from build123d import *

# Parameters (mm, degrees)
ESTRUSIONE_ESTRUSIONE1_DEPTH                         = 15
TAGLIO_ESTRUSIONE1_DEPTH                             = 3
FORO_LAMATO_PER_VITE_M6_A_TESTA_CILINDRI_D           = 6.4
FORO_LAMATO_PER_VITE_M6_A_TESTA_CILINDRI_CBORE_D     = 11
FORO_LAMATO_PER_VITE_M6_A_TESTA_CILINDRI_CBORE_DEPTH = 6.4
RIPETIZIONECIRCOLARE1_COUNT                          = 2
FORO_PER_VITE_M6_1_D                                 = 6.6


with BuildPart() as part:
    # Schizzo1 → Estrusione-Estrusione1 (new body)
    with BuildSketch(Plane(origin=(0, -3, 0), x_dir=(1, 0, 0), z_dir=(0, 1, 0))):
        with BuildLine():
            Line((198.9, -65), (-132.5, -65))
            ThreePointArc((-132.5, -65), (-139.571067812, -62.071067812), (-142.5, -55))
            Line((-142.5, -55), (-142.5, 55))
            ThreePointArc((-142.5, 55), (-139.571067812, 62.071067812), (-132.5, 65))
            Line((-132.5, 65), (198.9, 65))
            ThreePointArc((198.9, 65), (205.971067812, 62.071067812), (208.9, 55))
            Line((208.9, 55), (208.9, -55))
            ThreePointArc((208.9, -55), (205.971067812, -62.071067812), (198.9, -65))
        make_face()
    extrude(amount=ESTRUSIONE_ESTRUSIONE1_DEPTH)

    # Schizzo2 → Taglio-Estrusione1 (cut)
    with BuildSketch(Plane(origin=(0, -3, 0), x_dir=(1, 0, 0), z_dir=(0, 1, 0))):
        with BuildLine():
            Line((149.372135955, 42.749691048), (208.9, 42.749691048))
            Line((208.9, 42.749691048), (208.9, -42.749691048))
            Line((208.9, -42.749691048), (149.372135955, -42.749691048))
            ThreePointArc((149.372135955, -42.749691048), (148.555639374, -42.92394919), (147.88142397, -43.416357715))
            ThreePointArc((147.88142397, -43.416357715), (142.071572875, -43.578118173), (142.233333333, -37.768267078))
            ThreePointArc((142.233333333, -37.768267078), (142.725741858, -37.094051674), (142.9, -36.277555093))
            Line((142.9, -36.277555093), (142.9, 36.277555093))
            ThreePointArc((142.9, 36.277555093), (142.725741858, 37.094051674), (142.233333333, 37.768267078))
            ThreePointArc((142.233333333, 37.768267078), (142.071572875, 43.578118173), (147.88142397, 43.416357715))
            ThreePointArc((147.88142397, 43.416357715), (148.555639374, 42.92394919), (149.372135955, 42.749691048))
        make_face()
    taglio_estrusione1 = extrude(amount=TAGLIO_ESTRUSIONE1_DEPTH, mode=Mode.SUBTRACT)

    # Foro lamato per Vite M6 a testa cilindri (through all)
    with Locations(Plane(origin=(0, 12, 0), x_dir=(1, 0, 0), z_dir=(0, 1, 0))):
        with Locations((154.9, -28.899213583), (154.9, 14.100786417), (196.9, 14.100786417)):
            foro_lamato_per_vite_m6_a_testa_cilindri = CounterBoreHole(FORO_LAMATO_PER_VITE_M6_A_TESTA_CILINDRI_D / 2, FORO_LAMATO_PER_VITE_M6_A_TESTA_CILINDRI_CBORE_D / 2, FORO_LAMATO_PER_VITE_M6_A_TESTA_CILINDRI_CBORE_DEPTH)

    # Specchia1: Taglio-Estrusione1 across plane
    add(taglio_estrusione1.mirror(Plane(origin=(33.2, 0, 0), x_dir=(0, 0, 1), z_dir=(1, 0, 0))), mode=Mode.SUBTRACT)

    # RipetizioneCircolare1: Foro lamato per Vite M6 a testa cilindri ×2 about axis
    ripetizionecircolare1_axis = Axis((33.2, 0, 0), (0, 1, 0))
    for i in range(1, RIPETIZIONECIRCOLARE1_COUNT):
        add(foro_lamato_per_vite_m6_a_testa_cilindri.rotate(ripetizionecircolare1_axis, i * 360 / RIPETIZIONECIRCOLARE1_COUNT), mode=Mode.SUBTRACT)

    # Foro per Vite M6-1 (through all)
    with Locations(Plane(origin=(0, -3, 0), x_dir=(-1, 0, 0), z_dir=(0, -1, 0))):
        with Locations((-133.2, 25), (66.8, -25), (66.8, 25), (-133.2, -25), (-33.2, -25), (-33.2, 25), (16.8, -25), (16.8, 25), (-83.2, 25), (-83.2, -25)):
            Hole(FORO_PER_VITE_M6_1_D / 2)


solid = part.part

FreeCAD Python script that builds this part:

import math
import FreeCAD as App
import Part
import Sketcher

V = App.Vector

doc = App.newDocument("Part")
params = doc.addObject("Spreadsheet::Sheet", "Params")
for row, (alias, value) in enumerate([
    ("sketch1_radius", "10 mm"),
    ("sketch1_height", "110 mm"),
    ("sketch1_width", "331.4 mm"),
    ("pad1_length", "15 mm"),
    ("sketch2_radius", "2 mm"),
    ("sketch2_radius2", "4 mm"),
    ("pocket1_length", "3 mm"),
    ("sketch3_diameter", "6.4 mm"),
    ("hole_diameter", "6.4 mm"),
    ("hole_cbore_diameter", "11 mm"),
    ("hole_cbore_depth", "6.4 mm"),
    ("sketch4_diameter", "6.6 mm"),
    ("hole2_diameter", "6.6 mm"),
], start=1):
    params.set(f"A{row}", alias)
    params.set(f"B{row}", "=" + value)
    params.setAlias(f"B{row}", alias)

body = doc.addObject("PartDesign::Body", "Body")

sketch1 = body.newObject("Sketcher::SketchObject", "Sketch")
sketch1.AttachmentSupport = (doc.getObject("XZ_Plane"), [""])
sketch1.MapMode = "FlatFace"
sketch1.AttachmentOffset = App.Placement(V(0, 0, 3), App.Rotation())
sketch1.addGeometry(Part.LineSegment(V(-132.5, 65, 0), V(198.9, 65, 0)), False)
sketch1.addGeometry(Part.ArcOfCircle(Part.Circle(V(198.9, 55, 0), V(0, 0, 1), 10), math.radians(0), math.radians(90)), False)
sketch1.addGeometry(Part.LineSegment(V(208.9, 55, 0), V(208.9, -55, 0)), False)
sketch1.addGeometry(Part.ArcOfCircle(Part.Circle(V(198.9, -55, 0), V(0, 0, 1), 10), math.radians(-90), math.radians(0)), False)
sketch1.addGeometry(Part.LineSegment(V(198.9, -65, 0), V(-132.5, -65, 0)), False)
sketch1.addGeometry(Part.ArcOfCircle(Part.Circle(V(-132.5, -55, 0), V(0, 0, 1), 10), math.radians(180), math.radians(270)), False)
sketch1.addGeometry(Part.LineSegment(V(-142.5, -55, 0), V(-142.5, 55, 0)), False)
sketch1.addGeometry(Part.ArcOfCircle(Part.Circle(V(-132.5, 55, 0), V(0, 0, 1), 10), math.radians(90), math.radians(180)), False)
sketch1.addConstraint(Sketcher.Constraint("Tangent", 0, 2, 1, 2))
sketch1.addConstraint(Sketcher.Constraint("Tangent", 1, 1, 2, 1))
sketch1.addConstraint(Sketcher.Constraint("Tangent", 2, 2, 3, 2))
sketch1.addConstraint(Sketcher.Constraint("Tangent", 3, 1, 4, 1))
sketch1.addConstraint(Sketcher.Constraint("Tangent", 4, 2, 5, 2))
sketch1.addConstraint(Sketcher.Constraint("Tangent", 5, 1, 6, 1))
sketch1.addConstraint(Sketcher.Constraint("Tangent", 6, 2, 7, 2))
sketch1.addConstraint(Sketcher.Constraint("Tangent", 7, 1, 0, 1))
sketch1.addConstraint(Sketcher.Constraint("Horizontal", 0))
sketch1.addConstraint(Sketcher.Constraint("Vertical", 2))
sketch1.addConstraint(Sketcher.Constraint("Horizontal", 4))
sketch1.addConstraint(Sketcher.Constraint("Vertical", 6))
sketch1.addConstraint(Sketcher.Constraint("Equal", 1, 3))
sketch1.addConstraint(Sketcher.Constraint("Equal", 3, 5))
sketch1.addConstraint(Sketcher.Constraint("Equal", 5, 7))
sketch1.addConstraint(Sketcher.Constraint("Radius", 1, 10.0))
sketch1.addConstraint(Sketcher.Constraint("DistanceY", 2, 2, 2, 1, 110.0))
sketch1.addConstraint(Sketcher.Constraint("DistanceX", 0, 1, 0, 2, 331.4))
sketch1.addConstraint(Sketcher.Constraint("DistanceY", -1, 1, 1, 3, 55.0))
sketch1.addConstraint(Sketcher.Constraint("DistanceX", -1, 1, 1, 3, 198.9))
sketch1.setExpression("Constraints[15]", "Params.sketch1_radius")
sketch1.setExpression("Constraints[16]", "Params.sketch1_height")
sketch1.setExpression("Constraints[17]", "Params.sketch1_width")
pad1 = body.newObject("PartDesign::Pad", "Pad")
pad1.Profile = sketch1
pad1.setExpression("Length", "Params.pad1_length")
pad1.Reversed = True

sketch2 = body.newObject("Sketcher::SketchObject", "Sketch001")
sketch2.AttachmentSupport = (doc.getObject("XZ_Plane"), [""])
sketch2.MapMode = "FlatFace"
sketch2.AttachmentOffset = App.Placement(V(0, 0, 3), App.Rotation())
sketch2.addGeometry(Part.LineSegment(V(208.9, -42.749691, 0), V(149.372136, -42.749691, 0)), False)
sketch2.addGeometry(Part.ArcOfCircle(Part.Circle(V(149.372136, -44.749691, 0), V(0, 0, 1), 2), math.radians(90), math.radians(138.189685)), False)
sketch2.addGeometry(Part.ArcOfCircle(Part.Circle(V(144.9, -40.749691, 0), V(0, 0, 1), 4), math.radians(131.810315), math.radians(318.189685)), False)
sketch2.addGeometry(Part.ArcOfCircle(Part.Circle(V(140.9, -36.277555, 0), V(0, 0, 1), 2), math.radians(-48.189685), math.radians(0)), False)
sketch2.addGeometry(Part.LineSegment(V(142.9, -36.277555, 0), V(142.9, 36.277555, 0)), False)
sketch2.addGeometry(Part.ArcOfCircle(Part.Circle(V(140.9, 36.277555, 0), V(0, 0, 1), 2), math.radians(0), math.radians(48.189685)), False)
sketch2.addGeometry(Part.ArcOfCircle(Part.Circle(V(144.9, 40.749691, 0), V(0, 0, 1), 4), math.radians(41.810315), math.radians(228.189685)), False)
sketch2.addGeometry(Part.ArcOfCircle(Part.Circle(V(149.372136, 44.749691, 0), V(0, 0, 1), 2), math.radians(-138.189685), math.radians(-90)), False)
sketch2.addGeometry(Part.LineSegment(V(149.372136, 42.749691, 0), V(208.9, 42.749691, 0)), False)
sketch2.addGeometry(Part.LineSegment(V(208.9, 42.749691, 0), V(208.9, -42.749691, 0)), False)
sketch2.addConstraint(Sketcher.Constraint("Tangent", 0, 2, 1, 1))
sketch2.addConstraint(Sketcher.Constraint("Tangent", 1, 2, 2, 2))
sketch2.addConstraint(Sketcher.Constraint("Tangent", 2, 1, 3, 1))
sketch2.addConstraint(Sketcher.Constraint("Tangent", 3, 2, 4, 1))
sketch2.addConstraint(Sketcher.Constraint("Tangent", 4, 2, 5, 1))
sketch2.addConstraint(Sketcher.Constraint("Tangent", 5, 2, 6, 2))
sketch2.addConstraint(Sketcher.Constraint("Tangent", 6, 1, 7, 1))
sketch2.addConstraint(Sketcher.Constraint("Tangent", 7, 2, 8, 1))
sketch2.addConstraint(Sketcher.Constraint("Coincident", 8, 2, 9, 1))
sketch2.addConstraint(Sketcher.Constraint("Coincident", 9, 2, 0, 1))
sketch2.addConstraint(Sketcher.Constraint("Horizontal", 0))
sketch2.addConstraint(Sketcher.Constraint("Vertical", 4))
sketch2.addConstraint(Sketcher.Constraint("Horizontal", 8))
sketch2.addConstraint(Sketcher.Constraint("Vertical", 9))
sketch2.addConstraint(Sketcher.Constraint("Equal", 1, 3))
sketch2.addConstraint(Sketcher.Constraint("Equal", 3, 5))
sketch2.addConstraint(Sketcher.Constraint("Equal", 2, 6))
sketch2.addConstraint(Sketcher.Constraint("Equal", 5, 7))
sketch2.addConstraint(Sketcher.Constraint("Symmetric", 2, 3, 6, 3, -1))
sketch2.addConstraint(Sketcher.Constraint("Vertical", 1, 3, 7, 3))
sketch2.addConstraint(Sketcher.Constraint("Radius", 1, 2.0))
sketch2.addConstraint(Sketcher.Constraint("Radius", 2, 4.0))
sketch2.addConstraint(Sketcher.Constraint("DistanceY", 1, 3, 2, 3, 4.0))
sketch2.addConstraint(Sketcher.Constraint("DistanceX", 3, 3, 2, 3, 4.0))
sketch2.addConstraint(Sketcher.Constraint("DistanceX", 6, 3, 8, 2, 64.0))
sketch2.addConstraint(Sketcher.Constraint("DistanceX", -1, 1, 2, 3, 144.9))
sketch2.addConstraint(Sketcher.Constraint("DistanceY", 4, 1, 4, 2, 72.55511))
sketch2.setExpression("Constraints[20]", "Params.sketch2_radius")
sketch2.setExpression("Constraints[21]", "Params.sketch2_radius2")
pocket1 = body.newObject("PartDesign::Pocket", "Pocket")
pocket1.Profile = sketch2
pocket1.setExpression("Length", "Params.pocket1_length")

sketch3 = body.newObject("Sketcher::SketchObject", "Sketch002")
sketch3.AttachmentSupport = (doc.getObject("XZ_Plane"), [""])
sketch3.MapMode = "FlatFace"
sketch3.AttachmentOffset = App.Placement(V(0, 0, -12), App.Rotation())
sketch3.addGeometry(Part.Circle(V(154.9, 28.899214, 0), V(0, 0, 1), 3.2), False)
sketch3.addGeometry(Part.Circle(V(154.9, -14.100786, 0), V(0, 0, 1), 3.2), False)
sketch3.addGeometry(Part.Circle(V(196.9, -14.100786, 0), V(0, 0, 1), 3.2), False)
sketch3.addConstraint(Sketcher.Constraint("Equal", 0, 1))
sketch3.addConstraint(Sketcher.Constraint("Equal", 1, 2))
sketch3.addConstraint(Sketcher.Constraint("Horizontal", 1, 3, 2, 3))
sketch3.addConstraint(Sketcher.Constraint("Vertical", 0, 3, 1, 3))
sketch3.addConstraint(Sketcher.Constraint("Diameter", 0, 6.4))
sketch3.addConstraint(Sketcher.Constraint("DistanceY", 1, 3, 0, 3, 43.0))
sketch3.addConstraint(Sketcher.Constraint("DistanceX", 1, 3, 2, 3, 42.0))
sketch3.addConstraint(Sketcher.Constraint("DistanceX", -1, 1, 0, 3, 154.9))
sketch3.addConstraint(Sketcher.Constraint("DistanceY", -1, 1, 0, 3, 28.899214))
sketch3.setExpression("Constraints[4]", "Params.sketch3_diameter")
doc.recompute()
hole = body.newObject("PartDesign::Hole", "Hole")
hole.Profile = sketch3
hole.ThreadType = "None"
hole.setExpression("Diameter", "Params.hole_diameter")
hole.DepthType = "ThroughAll"
hole.HoleCutType = "Counterbore"
hole.setExpression("HoleCutDiameter", "Params.hole_cbore_diameter")
hole.setExpression("HoleCutDepth", "Params.hole_cbore_depth")
hole.Reversed = True
doc.recompute()

datumplane = body.newObject("PartDesign::Plane", "DatumPlane")
datumplane.AttachmentSupport = (doc.getObject("YZ_Plane"), [""])
datumplane.MapMode = "FlatFace"
datumplane.AttachmentOffset = App.Placement(V(0, 0, 33.2), App.Rotation())
mirrored = body.newObject("PartDesign::Mirrored", "Mirrored")
mirrored.Originals = [pocket1]
mirrored.MirrorPlane = (datumplane, [""])
body.Tip = mirrored
doc.recompute()

datumline = body.newObject("PartDesign::Line", "DatumLine")
datumline.Placement = App.Placement(V(33.2, 0, 0), App.Rotation(V(0, 0, 1), V(0, 1, 0)))
polarpattern = body.newObject("PartDesign::PolarPattern", "PolarPattern")
polarpattern.Originals = [hole]
polarpattern.Axis = (datumline, [""])
polarpattern.Angle = 360
polarpattern.Occurrences = 2
body.Tip = polarpattern

sketch4 = body.newObject("Sketcher::SketchObject", "Sketch003")
sketch4.AttachmentSupport = (doc.getObject("XZ_Plane"), [""])
sketch4.MapMode = "FlatFace"
sketch4.AttachmentOffset = App.Placement(V(0, 0, 3), App.Rotation())
sketch4.addGeometry(Part.Circle(V(133.2, -25, 0), V(0, 0, 1), 3.3), False)
sketch4.addGeometry(Part.Circle(V(-66.8, 25, 0), V(0, 0, 1), 3.3), False)
sketch4.addGeometry(Part.Circle(V(-66.8, -25, 0), V(0, 0, 1), 3.3), False)
sketch4.addGeometry(Part.Circle(V(133.2, 25, 0), V(0, 0, 1), 3.3), False)
sketch4.addGeometry(Part.Circle(V(33.2, 25, 0), V(0, 0, 1), 3.3), False)
sketch4.addGeometry(Part.Circle(V(33.2, -25, 0), V(0, 0, 1), 3.3), False)
sketch4.addGeometry(Part.Circle(V(-16.8, 25, 0), V(0, 0, 1), 3.3), False)
sketch4.addGeometry(Part.Circle(V(-16.8, -25, 0), V(0, 0, 1), 3.3), False)
sketch4.addGeometry(Part.Circle(V(83.2, -25, 0), V(0, 0, 1), 3.3), False)
sketch4.addGeometry(Part.Circle(V(83.2, 25, 0), V(0, 0, 1), 3.3), False)
sketch4.addConstraint(Sketcher.Constraint("Equal", 0, 1))
sketch4.addConstraint(Sketcher.Constraint("Equal", 1, 2))
sketch4.addConstraint(Sketcher.Constraint("Equal", 2, 3))
sketch4.addConstraint(Sketcher.Constraint("Equal", 3, 4))
sketch4.addConstraint(Sketcher.Constraint("Equal", 4, 5))
sketch4.addConstraint(Sketcher.Constraint("Equal", 5, 6))
sketch4.addConstraint(Sketcher.Constraint("Equal", 6, 7))
sketch4.addConstraint(Sketcher.Constraint("Equal", 7, 8))
sketch4.addConstraint(Sketcher.Constraint("Equal", 8, 9))
sketch4.addConstraint(Sketcher.Constraint("Symmetric", 1, 3, 2, 3, -1))
sketch4.addConstraint(Sketcher.Constraint("Symmetric", 0, 3, 3, 3, -1))
sketch4.addConstraint(Sketcher.Constraint("Symmetric", 4, 3, 5, 3, -1))
sketch4.addConstraint(Sketcher.Constraint("Symmetric", 6, 3, 7, 3, -1))
sketch4.addConstraint(Sketcher.Constraint("Symmetric", 8, 3, 9, 3, -1))
sketch4.addConstraint(Sketcher.Constraint("Horizontal", 0, 3, 2, 3))
sketch4.addConstraint(Sketcher.Constraint("Horizontal", 3, 3, 4, 3))
sketch4.addConstraint(Sketcher.Constraint("Horizontal", 4, 3, 6, 3))
sketch4.addConstraint(Sketcher.Constraint("Horizontal", 7, 3, 8, 3))
sketch4.addConstraint(Sketcher.Constraint("Diameter", 0, 6.6))
sketch4.addConstraint(Sketcher.Constraint("DistanceY", 0, 3, -1, 1, 25.0))
sketch4.addConstraint(Sketcher.Constraint("DistanceX", 1, 3, 0, 3, 200.0))
sketch4.addConstraint(Sketcher.Constraint("DistanceX", 4, 3, 3, 3, 100.0))
sketch4.addConstraint(Sketcher.Constraint("DistanceX", 1, 3, 6, 3, 50.0))
sketch4.addConstraint(Sketcher.Constraint("DistanceX", 8, 3, 0, 3, 50.0))
sketch4.addConstraint(Sketcher.Constraint("DistanceX", -1, 1, 0, 3, 133.2))
sketch4.setExpression("Constraints[18]", "Params.sketch4_diameter")
doc.recompute()
hole2 = body.newObject("PartDesign::Hole", "Hole001")
hole2.Profile = sketch4
hole2.ThreadType = "None"
hole2.setExpression("Diameter", "Params.hole2_diameter")
hole2.DepthType = "ThroughAll"

doc.recompute()
